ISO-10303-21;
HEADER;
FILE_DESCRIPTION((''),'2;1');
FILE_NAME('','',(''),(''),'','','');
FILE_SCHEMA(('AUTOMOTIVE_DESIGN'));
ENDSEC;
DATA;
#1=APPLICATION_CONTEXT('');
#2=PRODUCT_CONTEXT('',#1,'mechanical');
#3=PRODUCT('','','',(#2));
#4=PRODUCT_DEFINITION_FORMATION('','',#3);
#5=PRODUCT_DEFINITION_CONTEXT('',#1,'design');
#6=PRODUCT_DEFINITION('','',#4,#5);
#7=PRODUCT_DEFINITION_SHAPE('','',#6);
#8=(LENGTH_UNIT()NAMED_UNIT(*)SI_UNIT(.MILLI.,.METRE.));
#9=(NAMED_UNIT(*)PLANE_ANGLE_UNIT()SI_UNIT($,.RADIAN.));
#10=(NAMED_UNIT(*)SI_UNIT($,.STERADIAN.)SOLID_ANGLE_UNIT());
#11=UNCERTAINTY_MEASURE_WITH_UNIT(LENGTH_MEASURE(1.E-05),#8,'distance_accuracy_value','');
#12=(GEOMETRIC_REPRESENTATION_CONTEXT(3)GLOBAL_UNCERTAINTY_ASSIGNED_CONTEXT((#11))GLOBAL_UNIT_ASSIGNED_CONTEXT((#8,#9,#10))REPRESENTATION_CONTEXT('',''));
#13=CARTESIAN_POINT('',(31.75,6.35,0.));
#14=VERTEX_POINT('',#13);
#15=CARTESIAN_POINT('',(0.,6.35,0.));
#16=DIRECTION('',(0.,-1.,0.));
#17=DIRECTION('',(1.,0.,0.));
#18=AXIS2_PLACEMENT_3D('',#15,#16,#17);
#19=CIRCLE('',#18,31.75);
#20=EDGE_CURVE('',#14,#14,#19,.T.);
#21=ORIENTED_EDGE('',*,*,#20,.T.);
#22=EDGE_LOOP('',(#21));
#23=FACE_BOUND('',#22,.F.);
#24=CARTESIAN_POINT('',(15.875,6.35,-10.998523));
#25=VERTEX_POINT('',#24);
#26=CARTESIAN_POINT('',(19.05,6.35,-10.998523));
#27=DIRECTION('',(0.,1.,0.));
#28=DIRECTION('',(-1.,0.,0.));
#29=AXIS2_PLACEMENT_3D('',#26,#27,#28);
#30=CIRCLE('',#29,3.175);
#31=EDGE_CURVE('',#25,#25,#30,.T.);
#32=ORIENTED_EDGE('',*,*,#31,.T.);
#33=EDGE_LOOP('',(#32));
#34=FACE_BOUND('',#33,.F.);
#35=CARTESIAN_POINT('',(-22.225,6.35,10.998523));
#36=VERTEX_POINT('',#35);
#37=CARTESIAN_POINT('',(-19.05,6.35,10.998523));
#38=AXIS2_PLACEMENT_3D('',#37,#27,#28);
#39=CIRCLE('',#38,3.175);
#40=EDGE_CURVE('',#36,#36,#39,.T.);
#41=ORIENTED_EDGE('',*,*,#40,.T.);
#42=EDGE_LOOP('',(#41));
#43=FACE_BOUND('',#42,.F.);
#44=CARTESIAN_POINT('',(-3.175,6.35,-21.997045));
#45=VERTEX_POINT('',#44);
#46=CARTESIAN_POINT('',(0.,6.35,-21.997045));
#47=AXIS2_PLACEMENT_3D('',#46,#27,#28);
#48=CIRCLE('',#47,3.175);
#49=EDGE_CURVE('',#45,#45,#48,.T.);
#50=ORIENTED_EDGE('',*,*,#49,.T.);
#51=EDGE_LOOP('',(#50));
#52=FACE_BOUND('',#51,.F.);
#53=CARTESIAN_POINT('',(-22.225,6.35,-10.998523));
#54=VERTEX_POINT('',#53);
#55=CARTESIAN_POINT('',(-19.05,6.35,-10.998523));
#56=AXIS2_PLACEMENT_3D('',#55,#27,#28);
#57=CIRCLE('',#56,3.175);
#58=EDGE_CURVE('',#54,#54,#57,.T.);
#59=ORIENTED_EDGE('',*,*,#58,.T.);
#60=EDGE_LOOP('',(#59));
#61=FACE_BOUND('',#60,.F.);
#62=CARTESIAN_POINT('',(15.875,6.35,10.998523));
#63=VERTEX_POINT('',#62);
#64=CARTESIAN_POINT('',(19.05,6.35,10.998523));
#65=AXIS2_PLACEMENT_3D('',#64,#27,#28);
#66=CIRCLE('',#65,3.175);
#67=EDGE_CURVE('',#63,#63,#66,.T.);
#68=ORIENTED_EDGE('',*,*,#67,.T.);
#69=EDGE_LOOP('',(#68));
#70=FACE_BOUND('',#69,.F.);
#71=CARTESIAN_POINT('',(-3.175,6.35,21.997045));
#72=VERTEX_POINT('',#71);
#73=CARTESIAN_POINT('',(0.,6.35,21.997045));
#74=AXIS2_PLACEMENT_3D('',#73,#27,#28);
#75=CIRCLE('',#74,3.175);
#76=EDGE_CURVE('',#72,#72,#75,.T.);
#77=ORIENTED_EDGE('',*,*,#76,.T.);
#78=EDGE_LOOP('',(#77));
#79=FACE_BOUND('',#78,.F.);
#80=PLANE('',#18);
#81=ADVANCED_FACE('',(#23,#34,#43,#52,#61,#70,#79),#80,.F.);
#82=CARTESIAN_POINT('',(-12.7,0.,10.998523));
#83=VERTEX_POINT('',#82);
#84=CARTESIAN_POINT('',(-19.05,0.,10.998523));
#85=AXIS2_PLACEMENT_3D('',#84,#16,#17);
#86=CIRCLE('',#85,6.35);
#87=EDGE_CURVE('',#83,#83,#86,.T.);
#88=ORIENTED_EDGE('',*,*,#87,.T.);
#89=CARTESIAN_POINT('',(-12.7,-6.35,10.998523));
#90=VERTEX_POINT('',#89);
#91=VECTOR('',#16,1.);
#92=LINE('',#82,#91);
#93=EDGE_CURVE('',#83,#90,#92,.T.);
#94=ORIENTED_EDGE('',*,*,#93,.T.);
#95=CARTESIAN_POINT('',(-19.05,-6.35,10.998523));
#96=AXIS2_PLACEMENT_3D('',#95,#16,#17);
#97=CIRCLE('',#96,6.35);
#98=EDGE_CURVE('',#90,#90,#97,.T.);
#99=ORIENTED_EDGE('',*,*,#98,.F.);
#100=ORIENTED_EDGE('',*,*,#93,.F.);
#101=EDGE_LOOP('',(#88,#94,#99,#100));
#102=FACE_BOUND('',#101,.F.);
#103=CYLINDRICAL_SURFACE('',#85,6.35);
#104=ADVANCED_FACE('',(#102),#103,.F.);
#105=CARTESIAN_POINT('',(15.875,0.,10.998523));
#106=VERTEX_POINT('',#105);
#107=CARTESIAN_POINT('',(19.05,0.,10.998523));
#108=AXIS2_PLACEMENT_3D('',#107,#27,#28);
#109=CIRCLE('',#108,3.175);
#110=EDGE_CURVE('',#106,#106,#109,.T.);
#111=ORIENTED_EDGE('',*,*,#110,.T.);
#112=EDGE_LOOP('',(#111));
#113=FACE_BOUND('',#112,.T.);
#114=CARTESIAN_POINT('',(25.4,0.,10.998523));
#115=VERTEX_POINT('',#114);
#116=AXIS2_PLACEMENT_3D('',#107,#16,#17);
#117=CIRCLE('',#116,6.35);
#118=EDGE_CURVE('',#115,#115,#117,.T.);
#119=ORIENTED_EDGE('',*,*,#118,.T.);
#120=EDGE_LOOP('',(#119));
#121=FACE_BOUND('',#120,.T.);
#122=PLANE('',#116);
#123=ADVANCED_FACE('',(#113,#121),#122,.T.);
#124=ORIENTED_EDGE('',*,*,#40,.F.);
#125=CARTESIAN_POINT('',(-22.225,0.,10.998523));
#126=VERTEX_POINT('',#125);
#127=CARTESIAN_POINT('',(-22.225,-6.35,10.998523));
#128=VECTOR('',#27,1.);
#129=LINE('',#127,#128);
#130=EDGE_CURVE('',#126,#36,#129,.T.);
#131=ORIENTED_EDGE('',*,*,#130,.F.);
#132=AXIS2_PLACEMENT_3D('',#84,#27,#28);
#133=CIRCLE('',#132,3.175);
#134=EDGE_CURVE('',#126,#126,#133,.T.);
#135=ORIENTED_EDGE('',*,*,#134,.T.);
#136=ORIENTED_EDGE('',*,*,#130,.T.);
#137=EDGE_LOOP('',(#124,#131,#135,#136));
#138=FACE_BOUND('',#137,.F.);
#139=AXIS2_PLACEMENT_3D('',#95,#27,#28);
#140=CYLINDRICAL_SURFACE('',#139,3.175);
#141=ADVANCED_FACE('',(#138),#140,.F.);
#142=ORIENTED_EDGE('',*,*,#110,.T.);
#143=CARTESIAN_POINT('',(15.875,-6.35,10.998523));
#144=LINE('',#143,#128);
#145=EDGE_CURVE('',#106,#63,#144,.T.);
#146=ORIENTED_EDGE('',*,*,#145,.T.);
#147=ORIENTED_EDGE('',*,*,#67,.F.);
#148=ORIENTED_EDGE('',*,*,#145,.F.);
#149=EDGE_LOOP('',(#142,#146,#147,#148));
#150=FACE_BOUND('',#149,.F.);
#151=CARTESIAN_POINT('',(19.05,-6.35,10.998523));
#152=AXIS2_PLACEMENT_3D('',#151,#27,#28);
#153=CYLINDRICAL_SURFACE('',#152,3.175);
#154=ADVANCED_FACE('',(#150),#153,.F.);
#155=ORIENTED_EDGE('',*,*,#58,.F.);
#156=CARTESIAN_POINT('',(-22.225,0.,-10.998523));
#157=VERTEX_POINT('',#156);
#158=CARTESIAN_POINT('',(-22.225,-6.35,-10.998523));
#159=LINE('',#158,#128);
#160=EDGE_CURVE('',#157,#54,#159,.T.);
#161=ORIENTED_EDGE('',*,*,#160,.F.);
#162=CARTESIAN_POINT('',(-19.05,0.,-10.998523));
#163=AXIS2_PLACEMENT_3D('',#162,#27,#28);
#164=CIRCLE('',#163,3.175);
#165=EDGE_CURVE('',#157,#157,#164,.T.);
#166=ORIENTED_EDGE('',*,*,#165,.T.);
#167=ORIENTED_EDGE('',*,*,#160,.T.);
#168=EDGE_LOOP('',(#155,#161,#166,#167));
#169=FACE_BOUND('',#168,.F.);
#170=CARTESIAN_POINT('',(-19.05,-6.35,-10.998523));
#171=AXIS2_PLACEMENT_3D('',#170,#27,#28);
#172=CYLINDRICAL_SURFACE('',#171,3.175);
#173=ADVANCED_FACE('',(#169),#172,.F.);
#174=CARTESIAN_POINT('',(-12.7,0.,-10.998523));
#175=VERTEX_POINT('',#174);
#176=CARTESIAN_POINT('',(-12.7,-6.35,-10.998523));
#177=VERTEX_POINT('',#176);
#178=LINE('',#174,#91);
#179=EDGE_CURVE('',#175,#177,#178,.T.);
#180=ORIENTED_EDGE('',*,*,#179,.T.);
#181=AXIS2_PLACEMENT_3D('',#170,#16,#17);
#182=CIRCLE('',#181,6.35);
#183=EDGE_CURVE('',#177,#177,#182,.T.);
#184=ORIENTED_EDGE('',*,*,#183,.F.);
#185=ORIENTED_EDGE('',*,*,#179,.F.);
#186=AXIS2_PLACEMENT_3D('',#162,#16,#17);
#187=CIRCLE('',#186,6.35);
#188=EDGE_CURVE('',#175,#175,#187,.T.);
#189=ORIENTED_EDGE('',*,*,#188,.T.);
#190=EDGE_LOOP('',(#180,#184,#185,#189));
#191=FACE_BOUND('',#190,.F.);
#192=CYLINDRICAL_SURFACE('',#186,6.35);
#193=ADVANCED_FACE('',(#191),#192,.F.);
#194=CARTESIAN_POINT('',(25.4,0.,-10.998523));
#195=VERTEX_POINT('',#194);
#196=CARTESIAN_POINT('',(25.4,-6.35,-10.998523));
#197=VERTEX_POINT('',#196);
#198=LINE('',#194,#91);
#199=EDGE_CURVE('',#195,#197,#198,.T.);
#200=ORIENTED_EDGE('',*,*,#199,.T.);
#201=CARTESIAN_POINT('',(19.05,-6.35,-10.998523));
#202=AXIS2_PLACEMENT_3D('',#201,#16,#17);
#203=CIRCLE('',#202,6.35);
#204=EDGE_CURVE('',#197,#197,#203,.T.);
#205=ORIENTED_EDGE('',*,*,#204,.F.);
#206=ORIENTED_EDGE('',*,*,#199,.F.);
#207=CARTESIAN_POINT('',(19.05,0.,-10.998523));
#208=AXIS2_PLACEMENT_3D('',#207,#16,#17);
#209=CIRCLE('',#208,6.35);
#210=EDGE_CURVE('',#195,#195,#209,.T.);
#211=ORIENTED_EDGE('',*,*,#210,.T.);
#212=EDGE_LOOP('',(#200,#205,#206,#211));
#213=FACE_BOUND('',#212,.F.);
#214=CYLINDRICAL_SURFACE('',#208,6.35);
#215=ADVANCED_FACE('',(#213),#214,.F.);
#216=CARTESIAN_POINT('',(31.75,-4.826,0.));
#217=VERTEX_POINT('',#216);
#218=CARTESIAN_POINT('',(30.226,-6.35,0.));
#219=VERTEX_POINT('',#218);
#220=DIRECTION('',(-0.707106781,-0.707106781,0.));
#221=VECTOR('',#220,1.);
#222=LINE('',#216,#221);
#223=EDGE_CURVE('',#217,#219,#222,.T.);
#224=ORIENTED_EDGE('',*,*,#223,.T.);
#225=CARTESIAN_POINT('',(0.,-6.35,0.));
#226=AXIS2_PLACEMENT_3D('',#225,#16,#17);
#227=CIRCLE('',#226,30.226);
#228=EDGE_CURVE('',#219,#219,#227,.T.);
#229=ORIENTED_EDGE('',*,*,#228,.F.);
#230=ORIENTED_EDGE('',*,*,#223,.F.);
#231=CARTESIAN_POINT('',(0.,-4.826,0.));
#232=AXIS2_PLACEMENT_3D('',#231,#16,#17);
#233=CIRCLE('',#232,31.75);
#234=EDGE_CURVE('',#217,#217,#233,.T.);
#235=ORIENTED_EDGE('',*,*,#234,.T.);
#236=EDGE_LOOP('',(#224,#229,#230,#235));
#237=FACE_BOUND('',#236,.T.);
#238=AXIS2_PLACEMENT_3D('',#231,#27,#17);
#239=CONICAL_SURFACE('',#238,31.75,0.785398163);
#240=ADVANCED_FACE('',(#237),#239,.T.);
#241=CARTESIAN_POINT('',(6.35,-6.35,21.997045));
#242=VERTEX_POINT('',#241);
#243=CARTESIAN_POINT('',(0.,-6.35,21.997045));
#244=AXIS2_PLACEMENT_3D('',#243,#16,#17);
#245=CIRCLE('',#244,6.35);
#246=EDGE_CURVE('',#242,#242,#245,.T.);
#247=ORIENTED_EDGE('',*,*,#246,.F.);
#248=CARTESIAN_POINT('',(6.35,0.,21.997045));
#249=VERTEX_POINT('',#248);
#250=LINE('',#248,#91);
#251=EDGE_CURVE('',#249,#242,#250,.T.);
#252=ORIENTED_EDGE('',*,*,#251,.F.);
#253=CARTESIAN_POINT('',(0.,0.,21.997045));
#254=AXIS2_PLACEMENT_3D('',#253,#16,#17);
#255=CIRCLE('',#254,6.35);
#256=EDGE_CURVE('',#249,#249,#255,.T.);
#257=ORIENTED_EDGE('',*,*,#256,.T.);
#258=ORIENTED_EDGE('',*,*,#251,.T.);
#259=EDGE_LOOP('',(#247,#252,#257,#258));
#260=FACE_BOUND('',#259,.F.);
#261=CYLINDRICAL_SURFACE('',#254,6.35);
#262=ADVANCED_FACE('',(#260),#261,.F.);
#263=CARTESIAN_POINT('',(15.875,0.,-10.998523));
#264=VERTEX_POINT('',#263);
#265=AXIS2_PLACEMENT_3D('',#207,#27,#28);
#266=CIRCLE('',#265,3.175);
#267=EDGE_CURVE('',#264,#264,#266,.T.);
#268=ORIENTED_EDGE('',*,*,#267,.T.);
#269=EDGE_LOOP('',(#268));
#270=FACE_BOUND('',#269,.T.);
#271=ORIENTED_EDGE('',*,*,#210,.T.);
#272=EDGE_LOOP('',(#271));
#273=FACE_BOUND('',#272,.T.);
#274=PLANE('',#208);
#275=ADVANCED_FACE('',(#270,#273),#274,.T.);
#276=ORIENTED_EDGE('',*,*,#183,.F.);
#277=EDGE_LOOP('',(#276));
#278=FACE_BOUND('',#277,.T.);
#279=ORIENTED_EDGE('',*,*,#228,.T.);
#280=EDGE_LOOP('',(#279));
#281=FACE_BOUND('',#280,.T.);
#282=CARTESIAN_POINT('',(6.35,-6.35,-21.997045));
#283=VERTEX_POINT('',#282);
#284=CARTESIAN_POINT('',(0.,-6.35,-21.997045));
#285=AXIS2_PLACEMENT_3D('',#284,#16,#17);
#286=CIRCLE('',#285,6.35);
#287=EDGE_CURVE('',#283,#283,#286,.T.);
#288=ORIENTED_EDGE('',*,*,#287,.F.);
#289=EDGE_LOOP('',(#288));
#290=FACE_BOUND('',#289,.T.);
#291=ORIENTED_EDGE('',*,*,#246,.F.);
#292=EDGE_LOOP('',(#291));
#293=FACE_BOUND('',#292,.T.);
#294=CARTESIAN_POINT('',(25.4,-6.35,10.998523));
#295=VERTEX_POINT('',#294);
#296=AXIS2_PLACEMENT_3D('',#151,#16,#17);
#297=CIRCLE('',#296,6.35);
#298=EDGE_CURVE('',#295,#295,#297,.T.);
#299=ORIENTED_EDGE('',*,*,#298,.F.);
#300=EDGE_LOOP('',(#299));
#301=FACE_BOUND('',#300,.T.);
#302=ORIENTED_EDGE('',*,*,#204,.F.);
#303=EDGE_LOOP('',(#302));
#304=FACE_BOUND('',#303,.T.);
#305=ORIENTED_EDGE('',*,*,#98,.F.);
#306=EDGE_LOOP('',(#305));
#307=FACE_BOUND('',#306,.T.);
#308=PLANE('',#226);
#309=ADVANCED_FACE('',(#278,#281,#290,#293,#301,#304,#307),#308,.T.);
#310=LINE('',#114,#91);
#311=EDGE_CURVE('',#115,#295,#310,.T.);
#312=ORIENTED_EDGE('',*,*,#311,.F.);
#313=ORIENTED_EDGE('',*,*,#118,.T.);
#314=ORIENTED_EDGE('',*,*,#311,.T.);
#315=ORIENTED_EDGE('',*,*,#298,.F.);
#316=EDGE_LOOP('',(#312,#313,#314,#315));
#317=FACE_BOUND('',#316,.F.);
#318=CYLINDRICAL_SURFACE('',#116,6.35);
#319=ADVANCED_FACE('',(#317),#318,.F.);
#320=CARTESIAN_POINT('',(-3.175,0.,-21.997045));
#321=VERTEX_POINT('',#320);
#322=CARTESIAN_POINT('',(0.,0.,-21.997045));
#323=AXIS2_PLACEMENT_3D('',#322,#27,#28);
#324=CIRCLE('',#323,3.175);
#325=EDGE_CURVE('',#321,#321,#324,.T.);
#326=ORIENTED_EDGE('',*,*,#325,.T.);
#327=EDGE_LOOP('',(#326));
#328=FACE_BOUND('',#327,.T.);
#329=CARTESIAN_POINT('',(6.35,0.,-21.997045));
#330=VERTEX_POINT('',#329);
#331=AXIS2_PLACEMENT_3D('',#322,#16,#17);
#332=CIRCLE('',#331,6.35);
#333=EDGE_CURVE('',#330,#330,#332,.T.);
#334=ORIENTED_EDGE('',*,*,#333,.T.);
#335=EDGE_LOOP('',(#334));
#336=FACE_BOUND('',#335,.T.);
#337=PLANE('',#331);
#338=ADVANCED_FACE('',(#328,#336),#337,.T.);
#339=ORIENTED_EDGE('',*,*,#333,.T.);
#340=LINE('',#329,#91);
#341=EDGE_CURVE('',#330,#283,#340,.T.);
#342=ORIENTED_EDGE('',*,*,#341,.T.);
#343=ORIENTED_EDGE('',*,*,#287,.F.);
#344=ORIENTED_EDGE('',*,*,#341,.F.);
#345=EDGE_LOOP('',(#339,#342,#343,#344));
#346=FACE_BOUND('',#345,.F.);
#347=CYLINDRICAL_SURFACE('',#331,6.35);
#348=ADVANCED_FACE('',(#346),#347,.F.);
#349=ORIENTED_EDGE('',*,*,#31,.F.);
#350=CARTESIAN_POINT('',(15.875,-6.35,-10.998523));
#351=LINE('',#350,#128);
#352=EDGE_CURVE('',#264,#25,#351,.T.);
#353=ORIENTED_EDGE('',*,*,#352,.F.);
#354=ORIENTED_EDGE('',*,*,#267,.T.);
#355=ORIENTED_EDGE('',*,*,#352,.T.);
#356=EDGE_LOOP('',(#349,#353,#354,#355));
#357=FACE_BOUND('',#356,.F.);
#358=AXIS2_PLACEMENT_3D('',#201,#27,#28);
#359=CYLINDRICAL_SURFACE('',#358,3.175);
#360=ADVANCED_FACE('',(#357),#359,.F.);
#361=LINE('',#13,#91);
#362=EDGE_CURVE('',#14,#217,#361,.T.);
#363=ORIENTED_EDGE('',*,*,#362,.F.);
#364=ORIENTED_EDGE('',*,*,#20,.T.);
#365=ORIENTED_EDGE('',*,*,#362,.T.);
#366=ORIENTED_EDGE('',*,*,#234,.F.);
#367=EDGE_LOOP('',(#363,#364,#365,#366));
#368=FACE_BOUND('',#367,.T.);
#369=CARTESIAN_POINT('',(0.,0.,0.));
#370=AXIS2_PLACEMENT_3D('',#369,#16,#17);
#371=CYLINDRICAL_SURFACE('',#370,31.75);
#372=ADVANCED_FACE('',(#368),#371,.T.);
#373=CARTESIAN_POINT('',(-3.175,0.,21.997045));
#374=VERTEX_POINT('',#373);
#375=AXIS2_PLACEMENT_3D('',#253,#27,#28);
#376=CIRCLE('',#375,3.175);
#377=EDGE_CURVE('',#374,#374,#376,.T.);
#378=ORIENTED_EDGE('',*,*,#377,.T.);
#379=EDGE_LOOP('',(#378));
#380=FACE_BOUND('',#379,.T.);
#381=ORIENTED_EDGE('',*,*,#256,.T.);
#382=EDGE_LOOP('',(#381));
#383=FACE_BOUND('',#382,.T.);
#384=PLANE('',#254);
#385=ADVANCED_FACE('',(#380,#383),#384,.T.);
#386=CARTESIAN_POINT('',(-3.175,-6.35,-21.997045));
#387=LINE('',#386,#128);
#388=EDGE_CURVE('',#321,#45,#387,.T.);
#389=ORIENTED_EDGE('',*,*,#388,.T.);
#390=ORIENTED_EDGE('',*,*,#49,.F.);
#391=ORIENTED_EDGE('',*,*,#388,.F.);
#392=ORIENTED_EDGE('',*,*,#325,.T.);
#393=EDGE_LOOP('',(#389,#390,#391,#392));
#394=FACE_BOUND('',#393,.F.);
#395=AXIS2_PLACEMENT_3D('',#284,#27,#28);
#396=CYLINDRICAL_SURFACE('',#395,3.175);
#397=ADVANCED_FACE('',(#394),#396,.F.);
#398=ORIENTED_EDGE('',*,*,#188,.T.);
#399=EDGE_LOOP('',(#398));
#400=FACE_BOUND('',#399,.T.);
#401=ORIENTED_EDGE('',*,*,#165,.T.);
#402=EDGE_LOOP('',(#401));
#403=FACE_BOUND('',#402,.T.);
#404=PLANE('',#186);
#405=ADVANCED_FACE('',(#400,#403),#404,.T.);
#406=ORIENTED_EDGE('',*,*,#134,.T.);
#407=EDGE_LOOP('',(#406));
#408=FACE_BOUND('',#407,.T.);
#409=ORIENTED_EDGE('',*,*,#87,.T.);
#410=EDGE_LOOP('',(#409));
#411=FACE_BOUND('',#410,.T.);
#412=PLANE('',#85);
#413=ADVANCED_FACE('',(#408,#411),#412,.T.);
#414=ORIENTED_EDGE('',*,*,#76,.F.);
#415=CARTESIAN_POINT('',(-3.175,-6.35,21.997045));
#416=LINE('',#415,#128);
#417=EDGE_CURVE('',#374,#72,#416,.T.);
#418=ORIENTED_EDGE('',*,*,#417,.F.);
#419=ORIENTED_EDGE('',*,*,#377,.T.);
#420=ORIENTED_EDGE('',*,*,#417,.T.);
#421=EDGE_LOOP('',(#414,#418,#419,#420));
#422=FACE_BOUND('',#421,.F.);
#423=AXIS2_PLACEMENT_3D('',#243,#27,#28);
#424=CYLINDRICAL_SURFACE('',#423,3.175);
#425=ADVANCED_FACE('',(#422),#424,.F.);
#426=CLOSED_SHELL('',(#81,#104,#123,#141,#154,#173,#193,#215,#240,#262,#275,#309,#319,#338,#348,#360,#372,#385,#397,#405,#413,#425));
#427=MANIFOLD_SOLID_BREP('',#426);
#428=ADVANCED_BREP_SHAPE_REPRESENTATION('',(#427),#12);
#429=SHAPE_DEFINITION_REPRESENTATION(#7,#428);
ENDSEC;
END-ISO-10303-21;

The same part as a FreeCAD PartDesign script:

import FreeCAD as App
import Part
import Sketcher
from FreeCAD import Vector
Q = App.Units.Quantity


def edges_at(feature, points):
    """Names of the edges that pass closest to the given points."""
    edges = feature.Shape.Edges
    near = lambda p: min(range(len(edges)), key=lambda i: edges[i].distToShape(Part.Vertex(*p))[0])
    return sorted({f"Edge{near(p) + 1}" for p in points})

doc = App.newDocument("Part")
body = doc.addObject("PartDesign::Body", "Body")

# Sketch on XZ plane
sketch1 = body.newObject("Sketcher::SketchObject", "Sketch")
sketch1.AttachmentSupport = (doc.getObject("XZ_Plane"), [""])
sketch1.MapMode = "FlatFace"
sketch1.addGeometry(Part.Circle(Vector(0, 0, 0), Vector(0, 0, 1), 31.75), False)
sketch1.addConstraint([
    Sketcher.Constraint("Coincident", 0, 3, -1, 1),
    Sketcher.Constraint("Diameter", 0, Q("2.5 in")),
])
pad1 = body.newObject("PartDesign::Pad", "Pad")
pad1.Profile = sketch1
pad1.Length = Q("0.5 in")
pad1.Midplane = True

# Sketch on XZ plane
sketch2 = body.newObject("Sketcher::SketchObject", "Sketch001")
sketch2.AttachmentSupport = (doc.getObject("XZ_Plane"), [""])
sketch2.MapMode = "FlatFace"
sketch2.AttachmentOffset = App.Placement(Vector(0, 0, 0.25 * 25.4), App.Rotation())
sketch2.addGeometry([
    Part.Circle(Vector(-19.05, 10.998523, 0), Vector(0, 0, 1), 3.175),  # 0
    Part.Circle(Vector(0, 21.997045, 0), Vector(0, 0, 1), 3.175),  # 1
    Part.Circle(Vector(19.05, 10.998523, 0), Vector(0, 0, 1), 3.175),  # 2
    Part.Circle(Vector(19.05, -10.998523, 0), Vector(0, 0, 1), 3.175),  # 3
    Part.Circle(Vector(0, -21.997045, 0), Vector(0, 0, 1), 3.175),  # 4
    Part.Circle(Vector(-19.05, -10.998523, 0), Vector(0, 0, 1), 3.175),  # 5
], False)
sketch2.addConstraint([
    Sketcher.Constraint("Equal", 0, 1),
    Sketcher.Constraint("Equal", 1, 2),
    Sketcher.Constraint("Equal", 2, 3),
    Sketcher.Constraint("Equal", 3, 4),
    Sketcher.Constraint("Equal", 4, 5),
    Sketcher.Constraint("Symmetric", 0, 3, 3, 3, -1, 1),
    Sketcher.Constraint("Symmetric", 1, 3, 4, 3, -1, 1),
    Sketcher.Constraint("Symmetric", 2, 3, 5, 3, -1, 1),
    Sketcher.Constraint("Symmetric", 0, 3, 2, 3, -2),
    Sketcher.Constraint("PointOnObject", 1, 3, -2),
    Sketcher.Constraint("Diameter", 0, Q("0.25 in")),
    Sketcher.Constraint("DistanceX", 0, 3, 2, 3, Q("1.5 in")),
    Sketcher.Constraint("DistanceY", 4, 3, 1, 3, Q("43.99409 mm")),
    Sketcher.Constraint("DistanceY", -1, 1, 0, 3, Q("10.998523 mm")),
])
doc.recompute()
hole = body.newObject("PartDesign::Hole", "Hole")
hole.Profile = sketch2
hole.ThreadType = "None"
hole.Diameter = Q("0.25 in")
hole.DepthType = "ThroughAll"
hole.HoleCutType = "Counterbore"
hole.HoleCutDiameter = Q("0.5 in")
hole.HoleCutDepth = Q("0.25 in")
doc.recompute()

chamfer = body.newObject("PartDesign::Chamfer", "Chamfer")
chamfer.Base = (hole, edges_at(hole, [(-31.75, -6.35, 0)]))
chamfer.Size = Q("0.06 in")

doc.recompute()
